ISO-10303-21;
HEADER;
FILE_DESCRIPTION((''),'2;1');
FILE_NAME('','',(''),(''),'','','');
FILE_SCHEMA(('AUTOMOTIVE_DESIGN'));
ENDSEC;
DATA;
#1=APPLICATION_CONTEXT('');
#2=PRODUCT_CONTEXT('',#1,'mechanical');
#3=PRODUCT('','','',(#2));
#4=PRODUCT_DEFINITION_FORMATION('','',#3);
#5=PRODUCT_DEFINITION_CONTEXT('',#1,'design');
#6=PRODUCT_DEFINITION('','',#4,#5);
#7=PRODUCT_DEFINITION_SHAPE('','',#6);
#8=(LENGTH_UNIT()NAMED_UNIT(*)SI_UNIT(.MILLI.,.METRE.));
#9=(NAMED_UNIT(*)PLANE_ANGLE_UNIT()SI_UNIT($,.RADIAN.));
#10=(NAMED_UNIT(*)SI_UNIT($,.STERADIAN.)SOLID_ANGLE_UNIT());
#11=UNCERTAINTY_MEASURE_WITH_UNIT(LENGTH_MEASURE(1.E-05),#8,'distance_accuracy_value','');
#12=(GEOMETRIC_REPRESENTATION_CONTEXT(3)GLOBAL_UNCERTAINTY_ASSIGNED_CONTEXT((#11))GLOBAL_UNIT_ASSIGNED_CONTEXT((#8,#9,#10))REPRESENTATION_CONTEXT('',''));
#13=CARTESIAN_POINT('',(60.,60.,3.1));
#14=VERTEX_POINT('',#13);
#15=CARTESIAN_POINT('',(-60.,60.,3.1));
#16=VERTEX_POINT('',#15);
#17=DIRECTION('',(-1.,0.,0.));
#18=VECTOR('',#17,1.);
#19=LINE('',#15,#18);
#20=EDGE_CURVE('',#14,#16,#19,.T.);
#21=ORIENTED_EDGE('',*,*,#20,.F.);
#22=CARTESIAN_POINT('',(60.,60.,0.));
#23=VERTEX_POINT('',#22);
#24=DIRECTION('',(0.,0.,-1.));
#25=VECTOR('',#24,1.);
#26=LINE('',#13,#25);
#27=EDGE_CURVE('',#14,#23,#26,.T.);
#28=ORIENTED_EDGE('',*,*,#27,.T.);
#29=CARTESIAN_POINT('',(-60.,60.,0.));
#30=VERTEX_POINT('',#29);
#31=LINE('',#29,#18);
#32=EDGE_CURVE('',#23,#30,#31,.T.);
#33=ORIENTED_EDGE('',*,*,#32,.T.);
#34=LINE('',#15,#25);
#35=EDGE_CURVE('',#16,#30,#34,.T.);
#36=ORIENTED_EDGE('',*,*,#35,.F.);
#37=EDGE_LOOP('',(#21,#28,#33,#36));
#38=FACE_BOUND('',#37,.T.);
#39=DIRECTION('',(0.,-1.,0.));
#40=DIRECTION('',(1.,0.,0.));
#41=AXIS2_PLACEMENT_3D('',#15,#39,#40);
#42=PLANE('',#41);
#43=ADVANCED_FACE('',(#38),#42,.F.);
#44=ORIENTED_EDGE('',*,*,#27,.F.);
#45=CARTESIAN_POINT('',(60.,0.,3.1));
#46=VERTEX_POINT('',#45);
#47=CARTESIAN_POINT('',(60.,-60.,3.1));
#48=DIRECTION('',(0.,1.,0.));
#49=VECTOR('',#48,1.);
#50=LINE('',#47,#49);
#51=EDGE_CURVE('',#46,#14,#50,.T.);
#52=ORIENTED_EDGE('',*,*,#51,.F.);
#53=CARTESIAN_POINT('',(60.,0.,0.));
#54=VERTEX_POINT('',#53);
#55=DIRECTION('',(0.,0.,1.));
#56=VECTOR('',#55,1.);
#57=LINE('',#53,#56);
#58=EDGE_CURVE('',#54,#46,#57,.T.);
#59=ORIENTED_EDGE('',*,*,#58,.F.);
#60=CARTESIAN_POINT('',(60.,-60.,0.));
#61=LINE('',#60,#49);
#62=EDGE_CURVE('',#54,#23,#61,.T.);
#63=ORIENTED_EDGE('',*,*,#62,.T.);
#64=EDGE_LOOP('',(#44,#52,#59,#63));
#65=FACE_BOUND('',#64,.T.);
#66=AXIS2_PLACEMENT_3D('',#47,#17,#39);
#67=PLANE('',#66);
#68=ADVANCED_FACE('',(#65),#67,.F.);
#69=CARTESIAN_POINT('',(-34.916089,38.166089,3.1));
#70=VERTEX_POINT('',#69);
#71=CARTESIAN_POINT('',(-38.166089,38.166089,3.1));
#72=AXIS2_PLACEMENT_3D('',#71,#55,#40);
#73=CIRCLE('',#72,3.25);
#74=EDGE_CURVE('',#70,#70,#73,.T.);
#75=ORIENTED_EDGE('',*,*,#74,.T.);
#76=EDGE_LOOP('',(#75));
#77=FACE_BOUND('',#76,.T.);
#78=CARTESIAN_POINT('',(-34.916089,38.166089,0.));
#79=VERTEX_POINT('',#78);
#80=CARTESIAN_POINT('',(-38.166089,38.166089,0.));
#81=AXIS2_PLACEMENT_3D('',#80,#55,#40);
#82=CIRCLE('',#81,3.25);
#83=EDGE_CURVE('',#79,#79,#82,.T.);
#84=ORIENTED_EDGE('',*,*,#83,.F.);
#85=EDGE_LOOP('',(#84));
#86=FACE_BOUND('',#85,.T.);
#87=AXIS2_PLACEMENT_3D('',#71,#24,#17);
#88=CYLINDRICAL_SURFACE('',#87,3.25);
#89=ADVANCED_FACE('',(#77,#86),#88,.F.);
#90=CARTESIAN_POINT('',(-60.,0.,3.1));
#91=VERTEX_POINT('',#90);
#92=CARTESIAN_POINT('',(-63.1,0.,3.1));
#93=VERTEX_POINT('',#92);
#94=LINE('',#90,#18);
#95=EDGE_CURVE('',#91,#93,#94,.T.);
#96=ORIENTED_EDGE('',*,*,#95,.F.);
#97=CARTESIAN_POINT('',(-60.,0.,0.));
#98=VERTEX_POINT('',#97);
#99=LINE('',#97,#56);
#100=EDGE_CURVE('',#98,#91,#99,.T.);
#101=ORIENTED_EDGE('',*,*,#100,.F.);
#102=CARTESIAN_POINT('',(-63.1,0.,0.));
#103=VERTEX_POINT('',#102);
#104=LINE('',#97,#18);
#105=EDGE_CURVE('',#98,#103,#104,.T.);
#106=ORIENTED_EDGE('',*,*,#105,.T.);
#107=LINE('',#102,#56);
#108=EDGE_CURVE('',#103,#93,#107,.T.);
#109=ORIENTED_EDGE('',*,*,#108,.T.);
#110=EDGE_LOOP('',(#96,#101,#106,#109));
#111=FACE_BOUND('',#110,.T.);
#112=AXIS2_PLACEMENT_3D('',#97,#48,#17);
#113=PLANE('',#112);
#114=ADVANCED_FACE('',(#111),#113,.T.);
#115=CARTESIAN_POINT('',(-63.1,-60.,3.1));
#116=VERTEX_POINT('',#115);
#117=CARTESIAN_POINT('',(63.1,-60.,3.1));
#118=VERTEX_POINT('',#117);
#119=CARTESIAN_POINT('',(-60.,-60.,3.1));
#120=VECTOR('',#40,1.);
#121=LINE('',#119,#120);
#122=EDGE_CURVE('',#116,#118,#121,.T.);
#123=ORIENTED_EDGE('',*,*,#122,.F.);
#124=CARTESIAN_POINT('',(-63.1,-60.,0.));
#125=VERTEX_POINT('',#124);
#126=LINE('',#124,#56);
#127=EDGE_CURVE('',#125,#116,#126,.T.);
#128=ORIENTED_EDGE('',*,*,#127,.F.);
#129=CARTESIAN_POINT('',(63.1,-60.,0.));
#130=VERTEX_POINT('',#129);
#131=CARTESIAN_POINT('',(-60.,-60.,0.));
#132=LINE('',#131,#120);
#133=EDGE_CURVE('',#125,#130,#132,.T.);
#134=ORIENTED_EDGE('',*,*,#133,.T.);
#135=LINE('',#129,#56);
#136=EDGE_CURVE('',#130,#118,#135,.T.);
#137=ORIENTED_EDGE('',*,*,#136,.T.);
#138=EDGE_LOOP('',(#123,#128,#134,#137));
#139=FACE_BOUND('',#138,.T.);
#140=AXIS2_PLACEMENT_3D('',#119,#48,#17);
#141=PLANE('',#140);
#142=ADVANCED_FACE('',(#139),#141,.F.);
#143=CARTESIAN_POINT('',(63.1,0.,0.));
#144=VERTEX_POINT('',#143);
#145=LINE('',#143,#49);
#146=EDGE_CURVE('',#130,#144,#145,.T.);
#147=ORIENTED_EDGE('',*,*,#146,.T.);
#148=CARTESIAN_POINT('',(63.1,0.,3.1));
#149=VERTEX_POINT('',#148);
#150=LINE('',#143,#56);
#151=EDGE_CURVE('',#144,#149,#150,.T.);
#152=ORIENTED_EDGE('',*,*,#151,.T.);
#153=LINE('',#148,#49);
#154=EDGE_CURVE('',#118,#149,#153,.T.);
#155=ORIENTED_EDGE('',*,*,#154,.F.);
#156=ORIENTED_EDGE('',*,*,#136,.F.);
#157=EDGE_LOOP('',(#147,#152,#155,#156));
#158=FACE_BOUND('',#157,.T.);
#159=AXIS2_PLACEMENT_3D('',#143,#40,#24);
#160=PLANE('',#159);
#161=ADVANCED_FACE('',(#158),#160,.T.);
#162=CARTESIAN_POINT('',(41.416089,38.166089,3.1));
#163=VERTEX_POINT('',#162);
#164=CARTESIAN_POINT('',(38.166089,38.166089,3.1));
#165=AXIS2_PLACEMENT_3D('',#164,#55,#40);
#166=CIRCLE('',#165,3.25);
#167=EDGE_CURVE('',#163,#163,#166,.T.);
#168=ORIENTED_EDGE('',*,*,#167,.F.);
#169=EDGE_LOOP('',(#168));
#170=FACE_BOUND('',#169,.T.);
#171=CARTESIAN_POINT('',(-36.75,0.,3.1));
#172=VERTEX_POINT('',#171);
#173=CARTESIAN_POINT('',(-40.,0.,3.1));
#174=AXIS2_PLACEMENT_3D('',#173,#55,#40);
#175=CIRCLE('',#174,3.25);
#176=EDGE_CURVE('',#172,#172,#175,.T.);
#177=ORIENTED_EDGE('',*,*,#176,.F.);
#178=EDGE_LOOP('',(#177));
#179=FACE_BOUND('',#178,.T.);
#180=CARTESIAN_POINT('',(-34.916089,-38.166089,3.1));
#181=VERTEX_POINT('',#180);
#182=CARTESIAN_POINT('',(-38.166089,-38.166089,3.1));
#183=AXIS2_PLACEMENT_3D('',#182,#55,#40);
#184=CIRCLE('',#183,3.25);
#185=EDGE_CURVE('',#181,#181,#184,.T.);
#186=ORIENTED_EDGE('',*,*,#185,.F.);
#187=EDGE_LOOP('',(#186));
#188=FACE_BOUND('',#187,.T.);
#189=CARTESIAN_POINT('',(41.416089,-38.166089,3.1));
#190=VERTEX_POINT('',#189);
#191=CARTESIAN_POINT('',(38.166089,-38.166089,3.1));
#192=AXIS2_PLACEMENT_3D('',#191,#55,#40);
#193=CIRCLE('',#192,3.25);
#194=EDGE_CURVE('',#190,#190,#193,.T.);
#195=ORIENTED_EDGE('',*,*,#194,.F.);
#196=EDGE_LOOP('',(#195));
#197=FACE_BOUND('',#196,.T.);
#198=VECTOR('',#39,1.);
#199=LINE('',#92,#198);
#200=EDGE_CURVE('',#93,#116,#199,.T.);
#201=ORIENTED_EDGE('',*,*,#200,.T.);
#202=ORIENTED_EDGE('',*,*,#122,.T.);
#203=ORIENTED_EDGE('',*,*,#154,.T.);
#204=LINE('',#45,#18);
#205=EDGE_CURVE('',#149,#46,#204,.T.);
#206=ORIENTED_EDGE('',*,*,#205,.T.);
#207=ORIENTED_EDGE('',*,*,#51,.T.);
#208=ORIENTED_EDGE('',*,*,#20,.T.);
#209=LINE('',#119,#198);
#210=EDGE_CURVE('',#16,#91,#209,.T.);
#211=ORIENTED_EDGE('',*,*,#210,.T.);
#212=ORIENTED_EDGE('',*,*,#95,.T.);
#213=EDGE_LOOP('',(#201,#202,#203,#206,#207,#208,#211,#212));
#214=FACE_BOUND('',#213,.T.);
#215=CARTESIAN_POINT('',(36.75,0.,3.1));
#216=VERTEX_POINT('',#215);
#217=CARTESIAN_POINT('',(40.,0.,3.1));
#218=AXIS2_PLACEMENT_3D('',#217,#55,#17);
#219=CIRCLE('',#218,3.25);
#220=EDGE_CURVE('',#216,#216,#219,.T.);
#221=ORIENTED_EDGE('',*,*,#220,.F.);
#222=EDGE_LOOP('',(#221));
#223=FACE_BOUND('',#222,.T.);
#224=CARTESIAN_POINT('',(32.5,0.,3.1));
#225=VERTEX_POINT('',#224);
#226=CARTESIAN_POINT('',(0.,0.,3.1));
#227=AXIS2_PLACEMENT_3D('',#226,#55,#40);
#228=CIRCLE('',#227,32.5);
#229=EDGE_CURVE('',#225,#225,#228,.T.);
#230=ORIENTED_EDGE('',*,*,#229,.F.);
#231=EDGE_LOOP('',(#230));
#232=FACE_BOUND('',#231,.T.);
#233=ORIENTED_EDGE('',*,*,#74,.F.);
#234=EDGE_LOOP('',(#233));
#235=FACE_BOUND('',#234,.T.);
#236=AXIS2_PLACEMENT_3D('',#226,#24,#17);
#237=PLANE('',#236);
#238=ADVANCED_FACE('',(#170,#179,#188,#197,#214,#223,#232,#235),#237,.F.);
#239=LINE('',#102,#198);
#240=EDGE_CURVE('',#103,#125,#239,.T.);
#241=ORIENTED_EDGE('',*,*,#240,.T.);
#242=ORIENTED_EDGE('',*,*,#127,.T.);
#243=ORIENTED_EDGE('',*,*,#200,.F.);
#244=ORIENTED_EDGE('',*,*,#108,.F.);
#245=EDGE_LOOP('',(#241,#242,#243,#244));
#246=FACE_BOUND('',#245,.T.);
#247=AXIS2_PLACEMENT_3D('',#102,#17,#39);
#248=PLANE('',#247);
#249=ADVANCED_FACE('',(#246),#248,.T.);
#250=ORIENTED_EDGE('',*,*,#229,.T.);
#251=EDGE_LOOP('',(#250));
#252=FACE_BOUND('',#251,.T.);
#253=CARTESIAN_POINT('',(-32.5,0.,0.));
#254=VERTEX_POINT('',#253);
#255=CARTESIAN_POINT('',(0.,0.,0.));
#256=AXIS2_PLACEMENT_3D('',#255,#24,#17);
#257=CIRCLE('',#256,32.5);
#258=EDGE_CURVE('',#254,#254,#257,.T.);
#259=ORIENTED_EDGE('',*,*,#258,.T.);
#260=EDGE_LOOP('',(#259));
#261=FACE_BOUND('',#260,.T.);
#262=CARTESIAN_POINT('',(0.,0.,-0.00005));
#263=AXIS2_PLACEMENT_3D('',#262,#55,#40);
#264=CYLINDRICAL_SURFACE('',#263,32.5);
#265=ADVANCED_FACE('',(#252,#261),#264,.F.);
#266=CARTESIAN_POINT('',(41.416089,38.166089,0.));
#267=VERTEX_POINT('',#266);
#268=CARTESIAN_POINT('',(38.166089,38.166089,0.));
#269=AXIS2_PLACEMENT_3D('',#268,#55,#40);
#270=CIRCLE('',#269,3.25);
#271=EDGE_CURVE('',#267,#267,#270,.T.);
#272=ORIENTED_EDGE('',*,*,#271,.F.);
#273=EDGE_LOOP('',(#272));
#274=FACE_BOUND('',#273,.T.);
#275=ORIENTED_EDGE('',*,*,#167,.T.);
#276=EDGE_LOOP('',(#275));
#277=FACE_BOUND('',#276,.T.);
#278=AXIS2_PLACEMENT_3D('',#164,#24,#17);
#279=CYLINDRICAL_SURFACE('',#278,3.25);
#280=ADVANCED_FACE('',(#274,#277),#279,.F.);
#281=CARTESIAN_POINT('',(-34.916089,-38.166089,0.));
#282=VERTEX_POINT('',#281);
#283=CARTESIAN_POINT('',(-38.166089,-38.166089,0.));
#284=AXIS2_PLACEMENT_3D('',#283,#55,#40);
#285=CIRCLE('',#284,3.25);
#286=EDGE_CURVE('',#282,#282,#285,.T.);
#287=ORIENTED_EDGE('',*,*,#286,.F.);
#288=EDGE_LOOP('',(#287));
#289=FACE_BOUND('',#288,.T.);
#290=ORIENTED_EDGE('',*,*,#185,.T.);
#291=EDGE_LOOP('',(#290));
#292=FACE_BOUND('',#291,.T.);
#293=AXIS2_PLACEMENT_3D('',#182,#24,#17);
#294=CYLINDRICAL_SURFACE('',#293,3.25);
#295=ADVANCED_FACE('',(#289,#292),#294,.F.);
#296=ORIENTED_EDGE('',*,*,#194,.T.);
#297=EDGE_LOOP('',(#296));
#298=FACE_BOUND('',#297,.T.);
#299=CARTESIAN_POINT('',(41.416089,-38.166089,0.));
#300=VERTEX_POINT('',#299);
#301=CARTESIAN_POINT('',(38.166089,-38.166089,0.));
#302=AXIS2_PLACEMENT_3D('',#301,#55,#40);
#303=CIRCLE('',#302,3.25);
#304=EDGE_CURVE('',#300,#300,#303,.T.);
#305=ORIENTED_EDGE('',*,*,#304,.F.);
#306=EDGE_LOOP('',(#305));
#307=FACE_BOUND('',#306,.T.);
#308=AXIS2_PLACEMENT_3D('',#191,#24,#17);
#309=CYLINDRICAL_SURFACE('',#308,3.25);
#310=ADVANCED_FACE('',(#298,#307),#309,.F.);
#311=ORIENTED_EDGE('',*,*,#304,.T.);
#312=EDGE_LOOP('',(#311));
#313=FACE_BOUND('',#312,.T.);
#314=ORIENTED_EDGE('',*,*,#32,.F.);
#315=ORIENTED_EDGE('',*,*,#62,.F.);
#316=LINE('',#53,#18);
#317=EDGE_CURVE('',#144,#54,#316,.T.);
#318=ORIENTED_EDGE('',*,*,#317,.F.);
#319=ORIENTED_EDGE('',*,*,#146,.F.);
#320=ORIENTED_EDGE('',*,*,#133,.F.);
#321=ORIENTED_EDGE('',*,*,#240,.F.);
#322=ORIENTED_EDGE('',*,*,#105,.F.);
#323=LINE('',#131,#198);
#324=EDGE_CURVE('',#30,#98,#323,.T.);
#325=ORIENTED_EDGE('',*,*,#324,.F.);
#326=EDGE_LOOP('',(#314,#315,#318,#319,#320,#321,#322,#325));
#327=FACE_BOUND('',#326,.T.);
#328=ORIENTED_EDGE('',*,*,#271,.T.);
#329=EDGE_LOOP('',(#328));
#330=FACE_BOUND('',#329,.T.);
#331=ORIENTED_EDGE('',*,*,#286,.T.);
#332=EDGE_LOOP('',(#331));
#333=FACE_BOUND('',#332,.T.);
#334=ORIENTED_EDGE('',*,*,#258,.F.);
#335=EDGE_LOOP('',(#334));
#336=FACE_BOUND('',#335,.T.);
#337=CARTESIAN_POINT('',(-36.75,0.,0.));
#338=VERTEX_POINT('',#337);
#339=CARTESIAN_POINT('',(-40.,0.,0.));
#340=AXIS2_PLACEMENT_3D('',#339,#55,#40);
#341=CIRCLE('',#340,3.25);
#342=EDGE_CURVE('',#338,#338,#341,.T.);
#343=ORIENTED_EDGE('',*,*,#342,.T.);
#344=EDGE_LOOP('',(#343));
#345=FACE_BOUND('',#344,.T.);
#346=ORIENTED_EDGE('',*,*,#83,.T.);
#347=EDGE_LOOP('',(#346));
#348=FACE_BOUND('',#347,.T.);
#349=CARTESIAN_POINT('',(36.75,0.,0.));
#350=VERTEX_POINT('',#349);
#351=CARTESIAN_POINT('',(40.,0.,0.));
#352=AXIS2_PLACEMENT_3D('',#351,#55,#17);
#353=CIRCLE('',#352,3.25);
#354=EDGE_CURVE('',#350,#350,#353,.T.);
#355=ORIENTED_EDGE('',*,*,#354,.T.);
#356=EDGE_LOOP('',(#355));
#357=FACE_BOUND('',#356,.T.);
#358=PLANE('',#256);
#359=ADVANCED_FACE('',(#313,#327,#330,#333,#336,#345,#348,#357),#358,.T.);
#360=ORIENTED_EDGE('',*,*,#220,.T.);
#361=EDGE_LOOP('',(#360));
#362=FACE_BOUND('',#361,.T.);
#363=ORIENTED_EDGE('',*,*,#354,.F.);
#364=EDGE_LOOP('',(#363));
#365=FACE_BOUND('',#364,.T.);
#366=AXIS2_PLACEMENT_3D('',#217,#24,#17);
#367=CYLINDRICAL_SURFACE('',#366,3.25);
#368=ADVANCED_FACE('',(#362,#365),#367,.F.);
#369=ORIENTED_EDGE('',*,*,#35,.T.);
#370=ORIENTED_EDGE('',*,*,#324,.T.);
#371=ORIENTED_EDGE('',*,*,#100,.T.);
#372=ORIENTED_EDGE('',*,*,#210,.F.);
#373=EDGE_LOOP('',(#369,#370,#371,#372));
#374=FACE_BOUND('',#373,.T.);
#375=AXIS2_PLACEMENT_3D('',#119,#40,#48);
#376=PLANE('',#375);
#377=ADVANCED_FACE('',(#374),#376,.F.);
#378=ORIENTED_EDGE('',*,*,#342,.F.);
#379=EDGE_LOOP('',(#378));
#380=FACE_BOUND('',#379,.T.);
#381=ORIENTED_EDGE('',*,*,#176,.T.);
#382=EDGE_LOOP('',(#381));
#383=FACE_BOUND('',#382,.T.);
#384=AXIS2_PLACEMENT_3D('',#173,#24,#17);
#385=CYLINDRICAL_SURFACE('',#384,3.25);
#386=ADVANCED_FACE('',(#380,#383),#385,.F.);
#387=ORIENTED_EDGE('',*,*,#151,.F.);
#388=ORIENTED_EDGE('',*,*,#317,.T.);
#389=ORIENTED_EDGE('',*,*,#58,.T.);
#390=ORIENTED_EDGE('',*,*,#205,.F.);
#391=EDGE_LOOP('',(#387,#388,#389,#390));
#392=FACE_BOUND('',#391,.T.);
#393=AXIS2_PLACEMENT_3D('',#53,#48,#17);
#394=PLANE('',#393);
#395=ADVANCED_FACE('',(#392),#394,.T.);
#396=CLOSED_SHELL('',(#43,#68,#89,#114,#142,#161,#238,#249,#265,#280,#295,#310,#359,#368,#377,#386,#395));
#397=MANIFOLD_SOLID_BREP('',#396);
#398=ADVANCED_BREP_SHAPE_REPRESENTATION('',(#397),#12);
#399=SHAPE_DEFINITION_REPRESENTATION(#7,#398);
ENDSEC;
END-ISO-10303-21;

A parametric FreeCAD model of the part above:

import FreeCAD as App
import Part
import Sketcher


def add_polygon(sketch, points):
    """Adds a closed chain of lines whose ends are joined by coincident constraints."""
    first, n = sketch.GeometryCount, len(points)
    for a, b in zip(points, points[1:] + points[:1]):
        sketch.addGeometry(Part.LineSegment(App.Vector(*a, 0), App.Vector(*b, 0)), False)
    for i in range(n):
        sketch.addConstraint(Sketcher.Constraint("Coincident", first + i, 2, first + (i + 1) % n, 1))

doc = App.newDocument("Part")
body = doc.addObject("PartDesign::Body", "Body")

# Sketch on XY plane
sketch1 = doc.addObject("Sketcher::SketchObject", "Sketch")
body.addObject(sketch1)
sketch1.AttachmentSupport = (doc.XY_Plane, [""])
sketch1.MapMode = "FlatFace"
add_polygon(sketch1, [(-60, 60), (-60, -60), (60, -60), (60, 60)])  # lines 0-3
sketch1.addGeometry(Part.Circle(App.Vector(-38.166089, -38.166089, 0), App.Vector(0, 0, 1), 3.25), False)  # 4
sketch1.addGeometry(Part.Circle(App.Vector(38.166089, -38.166089, 0), App.Vector(0, 0, 1), 3.25), False)  # 5
sketch1.addGeometry(Part.Circle(App.Vector(-40, 0, 0), App.Vector(0, 0, 1), 3.25), False)  # 6
sketch1.addGeometry(Part.Circle(App.Vector(-38.166089, 38.166089, 0), App.Vector(0, 0, 1), 3.25), False)  # 7
sketch1.addGeometry(Part.Circle(App.Vector(40, 0, 0), App.Vector(0, 0, 1), 3.25), False)  # 8
sketch1.addGeometry(Part.Circle(App.Vector(38.166089, 38.166089, 0), App.Vector(0, 0, 1), 3.25), False)  # 9
sketch1.addConstraint(Sketcher.Constraint("Vertical", 0))
sketch1.addConstraint(Sketcher.Constraint("Horizontal", 1))
sketch1.addConstraint(Sketcher.Constraint("Vertical", 2))
sketch1.addConstraint(Sketcher.Constraint("Horizontal", 3))
sketch1.addConstraint(Sketcher.Constraint("Equal", 4, 5))
sketch1.addConstraint(Sketcher.Constraint("Equal", 5, 6))
sketch1.addConstraint(Sketcher.Constraint("Equal", 6, 7))
sketch1.addConstraint(Sketcher.Constraint("Equal", 7, 8))
sketch1.addConstraint(Sketcher.Constraint("Equal", 8, 9))
sketch1.addConstraint(Sketcher.Constraint("Symmetric", 5, 3, 7, 3, -1, 1))
sketch1.addConstraint(Sketcher.Constraint("Symmetric", 6, 3, 8, 3, -1, 1))
sketch1.addConstraint(Sketcher.Constraint("Symmetric", 4, 3, 9, 3, -1, 1))
sketch1.addConstraint(Sketcher.Constraint("Symmetric", 0, 2, 2, 2, -1, 1))
sketch1.addConstraint(Sketcher.Constraint("Symmetric", 4, 3, 5, 3, -2))
sketch1.addConstraint(Sketcher.Constraint("PointOnObject", 6, 3, -1))
sketch1.addConstraint(Sketcher.Constraint("Equal", 3, 0))
sketch1.addConstraint(Sketcher.Constraint("Diameter", 4, 6.5))
sketch1.addConstraint(Sketcher.Constraint("DistanceX", 1, 1, 1, 2, 120.0))
sketch1.addConstraint(Sketcher.Constraint("DistanceX", 6, 3, -1, 1, 40.0))
sketch1.addConstraint(Sketcher.Constraint("DistanceX", 4, 3, -1, 1, 38.166089))
sketch1.addConstraint(Sketcher.Constraint("DistanceY", 4, 3, -1, 1, 38.166089))
pad1 = doc.addObject("PartDesign::Pad", "Pad")
body.addObject(pad1)
pad1.Profile = sketch1
pad1.Length = 3.1

# Sketch on XY plane
sketch2 = doc.addObject("Sketcher::SketchObject", "Sketch001")
body.addObject(sketch2)
sketch2.AttachmentSupport = (doc.XY_Plane, [""])
sketch2.MapMode = "FlatFace"
sketch2.AttachmentOffset = App.Placement(App.Vector(0, 0, 3.1), App.Rotation())
add_polygon(sketch2, [(60, 0), (60, -60), (63.1, -60), (63.1, 0)])  # lines 0-3
add_polygon(sketch2, [(-63.1, 0), (-63.1, -60), (-60, -60), (-60, 0)])  # lines 4-7
sketch2.addConstraint(Sketcher.Constraint("Vertical", 0))
sketch2.addConstraint(Sketcher.Constraint("Horizontal", 1))
sketch2.addConstraint(Sketcher.Constraint("Vertical", 2))
sketch2.addConstraint(Sketcher.Constraint("Horizontal", 3))
sketch2.addConstraint(Sketcher.Constraint("Vertical", 4))
sketch2.addConstraint(Sketcher.Constraint("Horizontal", 5))
sketch2.addConstraint(Sketcher.Constraint("Vertical", 6))
sketch2.addConstraint(Sketcher.Constraint("Horizontal", 7))
sketch2.addConstraint(Sketcher.Constraint("Symmetric", 3, 2, 6, 2, -1, 1))
sketch2.addConstraint(Sketcher.Constraint("Symmetric", 1, 2, 4, 2, -2))
sketch2.addConstraint(Sketcher.Constraint("PointOnObject", 2, 2, -1))
sketch2.addConstraint(Sketcher.Constraint("DistanceY", 0, 2, 0, 1, 60.0))
sketch2.addConstraint(Sketcher.Constraint("DistanceX", 1, 1, 1, 2, 3.1))
sketch2.addConstraint(Sketcher.Constraint("DistanceX", -1, 1, 0, 2, 60.0))
pad2 = doc.addObject("PartDesign::Pad", "Pad001")
body.addObject(pad2)
pad2.Profile = sketch2
pad2.Type = "UpToLast"
pad2.Reversed = True

# Sketch on XY plane
sketch3 = doc.addObject("Sketcher::SketchObject", "Sketch002")
body.addObject(sketch3)
sketch3.AttachmentSupport = (doc.XY_Plane, [""])
sketch3.MapMode = "FlatFace"
sketch3.AttachmentOffset = App.Placement(App.Vector(0, 0, 3.1), App.Rotation())
sketch3.addGeometry(Part.Circle(App.Vector(0, 0, 0), App.Vector(0, 0, 1), 32.5), False)
sketch3.addConstraint(Sketcher.Constraint("Coincident", 0, 3, -1, 1))
sketch3.addConstraint(Sketcher.Constraint("Diameter", 0, 65.0))
pocket1 = doc.addObject("PartDesign::Pocket", "Pocket")
body.addObject(pocket1)
pocket1.Profile = sketch3
pocket1.Type = "ThroughAll"

doc.recompute()
